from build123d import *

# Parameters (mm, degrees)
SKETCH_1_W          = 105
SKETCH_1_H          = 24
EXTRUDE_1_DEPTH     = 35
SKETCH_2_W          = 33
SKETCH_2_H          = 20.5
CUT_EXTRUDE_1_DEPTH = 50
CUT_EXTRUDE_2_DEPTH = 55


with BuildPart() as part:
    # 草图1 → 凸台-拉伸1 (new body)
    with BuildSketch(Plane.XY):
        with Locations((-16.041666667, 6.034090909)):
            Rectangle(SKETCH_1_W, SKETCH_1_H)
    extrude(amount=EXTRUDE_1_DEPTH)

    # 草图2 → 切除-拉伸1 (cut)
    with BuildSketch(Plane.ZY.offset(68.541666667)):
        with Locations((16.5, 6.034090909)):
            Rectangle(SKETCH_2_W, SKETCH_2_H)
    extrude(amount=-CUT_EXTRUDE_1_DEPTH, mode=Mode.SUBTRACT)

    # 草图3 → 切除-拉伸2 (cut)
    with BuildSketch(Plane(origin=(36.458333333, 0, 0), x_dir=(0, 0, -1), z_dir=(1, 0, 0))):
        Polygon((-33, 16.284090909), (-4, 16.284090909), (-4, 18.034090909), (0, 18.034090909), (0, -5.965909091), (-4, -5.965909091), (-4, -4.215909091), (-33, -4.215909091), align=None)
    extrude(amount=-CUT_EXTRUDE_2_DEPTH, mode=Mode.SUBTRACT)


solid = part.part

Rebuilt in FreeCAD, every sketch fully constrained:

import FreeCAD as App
import Part
import Sketcher

V = App.Vector


def add_polygon(sketch, points):
    """Adds a closed chain of lines whose ends are joined by coincident constraints."""
    first, n = sketch.GeometryCount, len(points)
    for a, b in zip(points, points[1:] + points[:1]):
        sketch.addGeometry(Part.LineSegment(App.Vector(*a, 0), App.Vector(*b, 0)), False)
    for i in range(n):
        sketch.addConstraint(Sketcher.Constraint("Coincident", first + i, 2, first + (i + 1) % n, 1))

doc = App.newDocument("Part")
params = doc.addObject("Spreadsheet::Sheet", "Params")
for row, (alias, value) in enumerate([
    ("sketch1_width", "105 mm"),
    ("sketch1_height", "24 mm"),
    ("pad1_length", "35 mm"),
    ("sketch2_height", "33 mm"),
    ("sketch2_width", "20.5 mm"),
    ("pocket1_length", "50 mm"),
    ("sketch3_width", "24 mm"),
    ("sketch3_height", "29 mm"),
    ("sketch3_height2", "4 mm"),
    ("sketch3_width2", "20.5 mm"),
    ("pocket2_length", "55 mm"),
], start=1):
    params.set(f"A{row}", alias)
    params.set(f"B{row}", "=" + value)
    params.setAlias(f"B{row}", alias)

body = doc.addObject("PartDesign::Body", "Body")

sketch1 = body.newObject("Sketcher::SketchObject", "Sketch")
sketch1.AttachmentSupport = (doc.getObject("XY_Plane"), [""])
sketch1.MapMode = "FlatFace"
add_polygon(sketch1, [(-69, 18), (-69, -6), (36, -6), (36, 18)])
sketch1.addConstraint(Sketcher.Constraint("Vertical", 0))
sketch1.addConstraint(Sketcher.Constraint("Horizontal", 1))
sketch1.addConstraint(Sketcher.Constraint("Vertical", 2))
sketch1.addConstraint(Sketcher.Constraint("Horizontal", 3))
sketch1.addConstraint(Sketcher.Constraint("DistanceX", 1, 1, 1, 2, 105.0))
sketch1.addConstraint(Sketcher.Constraint("DistanceY", 0, 2, 0, 1, 24.0))
sketch1.addConstraint(Sketcher.Constraint("DistanceY", 0, 2, -1, 1, 5.965909))
sketch1.addConstraint(Sketcher.Constraint("DistanceX", 0, 2, -1, 1, 68.541667))
sketch1.setExpression("Constraints[8]", "Params.sketch1_width")
sketch1.setExpression("Constraints[9]", "Params.sketch1_height")
pad1 = body.newObject("PartDesign::Pad", "Pad")
pad1.Profile = sketch1
pad1.setExpression("Length", "Params.pad1_length")

sketch2 = body.newObject("Sketcher::SketchObject", "Sketch001")
sketch2.AttachmentSupport = (doc.getObject("YZ_Plane"), [""])
sketch2.MapMode = "FlatFace"
sketch2.AttachmentOffset = App.Placement(V(0, 0, -68.541667), App.Rotation())
add_polygon(sketch2, [(16, 0), (-4, 0), (-4, 33), (16, 33)])
sketch2.addConstraint(Sketcher.Constraint("Horizontal", 0))
sketch2.addConstraint(Sketcher.Constraint("Vertical", 1))
sketch2.addConstraint(Sketcher.Constraint("Horizontal", 2))
sketch2.addConstraint(Sketcher.Constraint("Vertical", 3))
sketch2.addConstraint(Sketcher.Constraint("PointOnObject", 0, 2, -1))
sketch2.addConstraint(Sketcher.Constraint("DistanceY", 1, 1, 1, 2, 33.0))
sketch2.addConstraint(Sketcher.Constraint("DistanceX", 0, 2, 0, 1, 20.5))
sketch2.addConstraint(Sketcher.Constraint("DistanceX", 0, 2, -1, 1, 4.215909))
sketch2.setExpression("Constraints[9]", "Params.sketch2_height")
sketch2.setExpression("Constraints[10]", "Params.sketch2_width")
pocket1 = body.newObject("PartDesign::Pocket", "Pocket")
pocket1.Profile = sketch2
pocket1.setExpression("Length", "Params.pocket1_length")
pocket1.Reversed = True

sketch3 = body.newObject("Sketcher::SketchObject", "Sketch002")
sketch3.AttachmentSupport = (doc.getObject("YZ_Plane"), [""])
sketch3.MapMode = "FlatFace"
sketch3.AttachmentOffset = App.Placement(V(0, 0, 36.458333), App.Rotation())
add_polygon(sketch3, [(16.3, 4), (16.3, 33), (-4.2, 33), (-4.2, 4), (-6, 4), (-6, 0), (18, 0), (18, 4)])
sketch3.addConstraint(Sketcher.Constraint("Vertical", 0))
sketch3.addConstraint(Sketcher.Constraint("Horizontal", 1))
sketch3.addConstraint(Sketcher.Constraint("Vertical", 2))
sketch3.addConstraint(Sketcher.Constraint("Horizontal", 3))
sketch3.addConstraint(Sketcher.Constraint("Vertical", 4))
sketch3.addConstraint(Sketcher.Constraint("Horizontal", 5))
sketch3.addConstraint(Sketcher.Constraint("Vertical", 6))
sketch3.addConstraint(Sketcher.Constraint("Horizontal", 7))
sketch3.addConstraint(Sketcher.Constraint("PointOnObject", 4, 2, -1))
sketch3.addConstraint(Sketcher.Constraint("Horizontal", 3, 2, 6, 2))
sketch3.addConstraint(Sketcher.Constraint("Equal", 3, 7))
sketch3.addConstraint(Sketcher.Constraint("DistanceX", 5, 1, 5, 2, 24.0))
sketch3.addConstraint(Sketcher.Constraint("DistanceY", 0, 1, 0, 2, 29.0))
sketch3.addConstraint(Sketcher.Constraint("DistanceY", 4, 2, 4, 1, 4.0))
sketch3.addConstraint(Sketcher.Constraint("DistanceX", 1, 2, 1, 1, 20.5))
sketch3.addConstraint(Sketcher.Constraint("DistanceX", -1, 1, 0, 2, 16.284091))
sketch3.setExpression("Constraints[19]", "Params.sketch3_width")
sketch3.setExpression("Constraints[20]", "Params.sketch3_height")
sketch3.setExpression("Constraints[21]", "Params.sketch3_height2")
sketch3.setExpression("Constraints[22]", "Params.sketch3_width2")
pocket2 = body.newObject("PartDesign::Pocket", "Pocket001")
pocket2.Profile = sketch3
pocket2.setExpression("Length", "Params.pocket2_length")

doc.recompute()
